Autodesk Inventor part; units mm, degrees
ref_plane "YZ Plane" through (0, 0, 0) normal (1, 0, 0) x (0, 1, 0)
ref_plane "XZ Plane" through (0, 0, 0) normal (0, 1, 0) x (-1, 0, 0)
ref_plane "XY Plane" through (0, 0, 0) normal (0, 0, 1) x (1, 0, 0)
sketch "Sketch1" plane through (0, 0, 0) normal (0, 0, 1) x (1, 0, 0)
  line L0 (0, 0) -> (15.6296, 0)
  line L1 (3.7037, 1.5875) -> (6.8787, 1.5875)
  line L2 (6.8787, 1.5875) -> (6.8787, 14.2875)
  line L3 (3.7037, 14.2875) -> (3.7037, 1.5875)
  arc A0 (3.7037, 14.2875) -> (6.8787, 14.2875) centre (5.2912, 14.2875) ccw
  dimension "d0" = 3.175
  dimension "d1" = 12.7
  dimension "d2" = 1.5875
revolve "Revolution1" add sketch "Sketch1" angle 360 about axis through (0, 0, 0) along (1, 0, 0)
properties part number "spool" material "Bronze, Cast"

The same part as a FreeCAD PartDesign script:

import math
import FreeCAD as App
import Part
import Sketcher
from FreeCAD import Vector
Q = App.Units.Quantity

doc = App.newDocument("Part")
body = doc.addObject("PartDesign::Body", "Body")

# Sketch on XY plane
sketch1 = doc.addObject("Sketcher::SketchObject", "Sketch")
body.addObject(sketch1)
sketch1.AttachmentSupport = (doc.XY_Plane, [""])
sketch1.MapMode = "FlatFace"
sketch1.addGeometry([
    Part.LineSegment(Vector(3.7, 14.3, 0), Vector(3.7, 1.6, 0)),
    Part.LineSegment(Vector(3.7, 1.6, 0), Vector(6.9, 1.6, 0)),
    Part.LineSegment(Vector(6.9, 1.6, 0), Vector(6.9, 14.3, 0)),
    Part.ArcOfCircle(Part.Circle(Vector(5.3, 14.3, 0), Vector(0, 0, 1), 1.6), math.radians(180), math.radians(360)),
], False)
sketch1.addConstraint([
    Sketcher.Constraint("Coincident", 0, 2, 1, 1),
    Sketcher.Constraint("Coincident", 1, 2, 2, 1),
    Sketcher.Constraint("Tangent", 2, 2, 3, 2),
    Sketcher.Constraint("Tangent", 3, 1, 0, 1),
    Sketcher.Constraint("Vertical", 0),
    Sketcher.Constraint("Horizontal", 1),
    Sketcher.Constraint("Vertical", 2),
    Sketcher.Constraint("DistanceY", 0, 2, 0, 1, Q("0.5 in")),
    Sketcher.Constraint("Radius", 3, Q("0.0625 in")),
    Sketcher.Constraint("DistanceY", -1, 1, 0, 2, Q("0.0625 in")),
    Sketcher.Constraint("DistanceX", -1, 1, 3, 3, Q("5.2912 mm")),
])
revolution = doc.addObject("PartDesign::Revolution", "Revolution")
body.addObject(revolution)
revolution.Profile = sketch1
revolution.ReferenceAxis = (sketch1, ["H_Axis"])
revolution.Angle = 360

doc.recompute()
